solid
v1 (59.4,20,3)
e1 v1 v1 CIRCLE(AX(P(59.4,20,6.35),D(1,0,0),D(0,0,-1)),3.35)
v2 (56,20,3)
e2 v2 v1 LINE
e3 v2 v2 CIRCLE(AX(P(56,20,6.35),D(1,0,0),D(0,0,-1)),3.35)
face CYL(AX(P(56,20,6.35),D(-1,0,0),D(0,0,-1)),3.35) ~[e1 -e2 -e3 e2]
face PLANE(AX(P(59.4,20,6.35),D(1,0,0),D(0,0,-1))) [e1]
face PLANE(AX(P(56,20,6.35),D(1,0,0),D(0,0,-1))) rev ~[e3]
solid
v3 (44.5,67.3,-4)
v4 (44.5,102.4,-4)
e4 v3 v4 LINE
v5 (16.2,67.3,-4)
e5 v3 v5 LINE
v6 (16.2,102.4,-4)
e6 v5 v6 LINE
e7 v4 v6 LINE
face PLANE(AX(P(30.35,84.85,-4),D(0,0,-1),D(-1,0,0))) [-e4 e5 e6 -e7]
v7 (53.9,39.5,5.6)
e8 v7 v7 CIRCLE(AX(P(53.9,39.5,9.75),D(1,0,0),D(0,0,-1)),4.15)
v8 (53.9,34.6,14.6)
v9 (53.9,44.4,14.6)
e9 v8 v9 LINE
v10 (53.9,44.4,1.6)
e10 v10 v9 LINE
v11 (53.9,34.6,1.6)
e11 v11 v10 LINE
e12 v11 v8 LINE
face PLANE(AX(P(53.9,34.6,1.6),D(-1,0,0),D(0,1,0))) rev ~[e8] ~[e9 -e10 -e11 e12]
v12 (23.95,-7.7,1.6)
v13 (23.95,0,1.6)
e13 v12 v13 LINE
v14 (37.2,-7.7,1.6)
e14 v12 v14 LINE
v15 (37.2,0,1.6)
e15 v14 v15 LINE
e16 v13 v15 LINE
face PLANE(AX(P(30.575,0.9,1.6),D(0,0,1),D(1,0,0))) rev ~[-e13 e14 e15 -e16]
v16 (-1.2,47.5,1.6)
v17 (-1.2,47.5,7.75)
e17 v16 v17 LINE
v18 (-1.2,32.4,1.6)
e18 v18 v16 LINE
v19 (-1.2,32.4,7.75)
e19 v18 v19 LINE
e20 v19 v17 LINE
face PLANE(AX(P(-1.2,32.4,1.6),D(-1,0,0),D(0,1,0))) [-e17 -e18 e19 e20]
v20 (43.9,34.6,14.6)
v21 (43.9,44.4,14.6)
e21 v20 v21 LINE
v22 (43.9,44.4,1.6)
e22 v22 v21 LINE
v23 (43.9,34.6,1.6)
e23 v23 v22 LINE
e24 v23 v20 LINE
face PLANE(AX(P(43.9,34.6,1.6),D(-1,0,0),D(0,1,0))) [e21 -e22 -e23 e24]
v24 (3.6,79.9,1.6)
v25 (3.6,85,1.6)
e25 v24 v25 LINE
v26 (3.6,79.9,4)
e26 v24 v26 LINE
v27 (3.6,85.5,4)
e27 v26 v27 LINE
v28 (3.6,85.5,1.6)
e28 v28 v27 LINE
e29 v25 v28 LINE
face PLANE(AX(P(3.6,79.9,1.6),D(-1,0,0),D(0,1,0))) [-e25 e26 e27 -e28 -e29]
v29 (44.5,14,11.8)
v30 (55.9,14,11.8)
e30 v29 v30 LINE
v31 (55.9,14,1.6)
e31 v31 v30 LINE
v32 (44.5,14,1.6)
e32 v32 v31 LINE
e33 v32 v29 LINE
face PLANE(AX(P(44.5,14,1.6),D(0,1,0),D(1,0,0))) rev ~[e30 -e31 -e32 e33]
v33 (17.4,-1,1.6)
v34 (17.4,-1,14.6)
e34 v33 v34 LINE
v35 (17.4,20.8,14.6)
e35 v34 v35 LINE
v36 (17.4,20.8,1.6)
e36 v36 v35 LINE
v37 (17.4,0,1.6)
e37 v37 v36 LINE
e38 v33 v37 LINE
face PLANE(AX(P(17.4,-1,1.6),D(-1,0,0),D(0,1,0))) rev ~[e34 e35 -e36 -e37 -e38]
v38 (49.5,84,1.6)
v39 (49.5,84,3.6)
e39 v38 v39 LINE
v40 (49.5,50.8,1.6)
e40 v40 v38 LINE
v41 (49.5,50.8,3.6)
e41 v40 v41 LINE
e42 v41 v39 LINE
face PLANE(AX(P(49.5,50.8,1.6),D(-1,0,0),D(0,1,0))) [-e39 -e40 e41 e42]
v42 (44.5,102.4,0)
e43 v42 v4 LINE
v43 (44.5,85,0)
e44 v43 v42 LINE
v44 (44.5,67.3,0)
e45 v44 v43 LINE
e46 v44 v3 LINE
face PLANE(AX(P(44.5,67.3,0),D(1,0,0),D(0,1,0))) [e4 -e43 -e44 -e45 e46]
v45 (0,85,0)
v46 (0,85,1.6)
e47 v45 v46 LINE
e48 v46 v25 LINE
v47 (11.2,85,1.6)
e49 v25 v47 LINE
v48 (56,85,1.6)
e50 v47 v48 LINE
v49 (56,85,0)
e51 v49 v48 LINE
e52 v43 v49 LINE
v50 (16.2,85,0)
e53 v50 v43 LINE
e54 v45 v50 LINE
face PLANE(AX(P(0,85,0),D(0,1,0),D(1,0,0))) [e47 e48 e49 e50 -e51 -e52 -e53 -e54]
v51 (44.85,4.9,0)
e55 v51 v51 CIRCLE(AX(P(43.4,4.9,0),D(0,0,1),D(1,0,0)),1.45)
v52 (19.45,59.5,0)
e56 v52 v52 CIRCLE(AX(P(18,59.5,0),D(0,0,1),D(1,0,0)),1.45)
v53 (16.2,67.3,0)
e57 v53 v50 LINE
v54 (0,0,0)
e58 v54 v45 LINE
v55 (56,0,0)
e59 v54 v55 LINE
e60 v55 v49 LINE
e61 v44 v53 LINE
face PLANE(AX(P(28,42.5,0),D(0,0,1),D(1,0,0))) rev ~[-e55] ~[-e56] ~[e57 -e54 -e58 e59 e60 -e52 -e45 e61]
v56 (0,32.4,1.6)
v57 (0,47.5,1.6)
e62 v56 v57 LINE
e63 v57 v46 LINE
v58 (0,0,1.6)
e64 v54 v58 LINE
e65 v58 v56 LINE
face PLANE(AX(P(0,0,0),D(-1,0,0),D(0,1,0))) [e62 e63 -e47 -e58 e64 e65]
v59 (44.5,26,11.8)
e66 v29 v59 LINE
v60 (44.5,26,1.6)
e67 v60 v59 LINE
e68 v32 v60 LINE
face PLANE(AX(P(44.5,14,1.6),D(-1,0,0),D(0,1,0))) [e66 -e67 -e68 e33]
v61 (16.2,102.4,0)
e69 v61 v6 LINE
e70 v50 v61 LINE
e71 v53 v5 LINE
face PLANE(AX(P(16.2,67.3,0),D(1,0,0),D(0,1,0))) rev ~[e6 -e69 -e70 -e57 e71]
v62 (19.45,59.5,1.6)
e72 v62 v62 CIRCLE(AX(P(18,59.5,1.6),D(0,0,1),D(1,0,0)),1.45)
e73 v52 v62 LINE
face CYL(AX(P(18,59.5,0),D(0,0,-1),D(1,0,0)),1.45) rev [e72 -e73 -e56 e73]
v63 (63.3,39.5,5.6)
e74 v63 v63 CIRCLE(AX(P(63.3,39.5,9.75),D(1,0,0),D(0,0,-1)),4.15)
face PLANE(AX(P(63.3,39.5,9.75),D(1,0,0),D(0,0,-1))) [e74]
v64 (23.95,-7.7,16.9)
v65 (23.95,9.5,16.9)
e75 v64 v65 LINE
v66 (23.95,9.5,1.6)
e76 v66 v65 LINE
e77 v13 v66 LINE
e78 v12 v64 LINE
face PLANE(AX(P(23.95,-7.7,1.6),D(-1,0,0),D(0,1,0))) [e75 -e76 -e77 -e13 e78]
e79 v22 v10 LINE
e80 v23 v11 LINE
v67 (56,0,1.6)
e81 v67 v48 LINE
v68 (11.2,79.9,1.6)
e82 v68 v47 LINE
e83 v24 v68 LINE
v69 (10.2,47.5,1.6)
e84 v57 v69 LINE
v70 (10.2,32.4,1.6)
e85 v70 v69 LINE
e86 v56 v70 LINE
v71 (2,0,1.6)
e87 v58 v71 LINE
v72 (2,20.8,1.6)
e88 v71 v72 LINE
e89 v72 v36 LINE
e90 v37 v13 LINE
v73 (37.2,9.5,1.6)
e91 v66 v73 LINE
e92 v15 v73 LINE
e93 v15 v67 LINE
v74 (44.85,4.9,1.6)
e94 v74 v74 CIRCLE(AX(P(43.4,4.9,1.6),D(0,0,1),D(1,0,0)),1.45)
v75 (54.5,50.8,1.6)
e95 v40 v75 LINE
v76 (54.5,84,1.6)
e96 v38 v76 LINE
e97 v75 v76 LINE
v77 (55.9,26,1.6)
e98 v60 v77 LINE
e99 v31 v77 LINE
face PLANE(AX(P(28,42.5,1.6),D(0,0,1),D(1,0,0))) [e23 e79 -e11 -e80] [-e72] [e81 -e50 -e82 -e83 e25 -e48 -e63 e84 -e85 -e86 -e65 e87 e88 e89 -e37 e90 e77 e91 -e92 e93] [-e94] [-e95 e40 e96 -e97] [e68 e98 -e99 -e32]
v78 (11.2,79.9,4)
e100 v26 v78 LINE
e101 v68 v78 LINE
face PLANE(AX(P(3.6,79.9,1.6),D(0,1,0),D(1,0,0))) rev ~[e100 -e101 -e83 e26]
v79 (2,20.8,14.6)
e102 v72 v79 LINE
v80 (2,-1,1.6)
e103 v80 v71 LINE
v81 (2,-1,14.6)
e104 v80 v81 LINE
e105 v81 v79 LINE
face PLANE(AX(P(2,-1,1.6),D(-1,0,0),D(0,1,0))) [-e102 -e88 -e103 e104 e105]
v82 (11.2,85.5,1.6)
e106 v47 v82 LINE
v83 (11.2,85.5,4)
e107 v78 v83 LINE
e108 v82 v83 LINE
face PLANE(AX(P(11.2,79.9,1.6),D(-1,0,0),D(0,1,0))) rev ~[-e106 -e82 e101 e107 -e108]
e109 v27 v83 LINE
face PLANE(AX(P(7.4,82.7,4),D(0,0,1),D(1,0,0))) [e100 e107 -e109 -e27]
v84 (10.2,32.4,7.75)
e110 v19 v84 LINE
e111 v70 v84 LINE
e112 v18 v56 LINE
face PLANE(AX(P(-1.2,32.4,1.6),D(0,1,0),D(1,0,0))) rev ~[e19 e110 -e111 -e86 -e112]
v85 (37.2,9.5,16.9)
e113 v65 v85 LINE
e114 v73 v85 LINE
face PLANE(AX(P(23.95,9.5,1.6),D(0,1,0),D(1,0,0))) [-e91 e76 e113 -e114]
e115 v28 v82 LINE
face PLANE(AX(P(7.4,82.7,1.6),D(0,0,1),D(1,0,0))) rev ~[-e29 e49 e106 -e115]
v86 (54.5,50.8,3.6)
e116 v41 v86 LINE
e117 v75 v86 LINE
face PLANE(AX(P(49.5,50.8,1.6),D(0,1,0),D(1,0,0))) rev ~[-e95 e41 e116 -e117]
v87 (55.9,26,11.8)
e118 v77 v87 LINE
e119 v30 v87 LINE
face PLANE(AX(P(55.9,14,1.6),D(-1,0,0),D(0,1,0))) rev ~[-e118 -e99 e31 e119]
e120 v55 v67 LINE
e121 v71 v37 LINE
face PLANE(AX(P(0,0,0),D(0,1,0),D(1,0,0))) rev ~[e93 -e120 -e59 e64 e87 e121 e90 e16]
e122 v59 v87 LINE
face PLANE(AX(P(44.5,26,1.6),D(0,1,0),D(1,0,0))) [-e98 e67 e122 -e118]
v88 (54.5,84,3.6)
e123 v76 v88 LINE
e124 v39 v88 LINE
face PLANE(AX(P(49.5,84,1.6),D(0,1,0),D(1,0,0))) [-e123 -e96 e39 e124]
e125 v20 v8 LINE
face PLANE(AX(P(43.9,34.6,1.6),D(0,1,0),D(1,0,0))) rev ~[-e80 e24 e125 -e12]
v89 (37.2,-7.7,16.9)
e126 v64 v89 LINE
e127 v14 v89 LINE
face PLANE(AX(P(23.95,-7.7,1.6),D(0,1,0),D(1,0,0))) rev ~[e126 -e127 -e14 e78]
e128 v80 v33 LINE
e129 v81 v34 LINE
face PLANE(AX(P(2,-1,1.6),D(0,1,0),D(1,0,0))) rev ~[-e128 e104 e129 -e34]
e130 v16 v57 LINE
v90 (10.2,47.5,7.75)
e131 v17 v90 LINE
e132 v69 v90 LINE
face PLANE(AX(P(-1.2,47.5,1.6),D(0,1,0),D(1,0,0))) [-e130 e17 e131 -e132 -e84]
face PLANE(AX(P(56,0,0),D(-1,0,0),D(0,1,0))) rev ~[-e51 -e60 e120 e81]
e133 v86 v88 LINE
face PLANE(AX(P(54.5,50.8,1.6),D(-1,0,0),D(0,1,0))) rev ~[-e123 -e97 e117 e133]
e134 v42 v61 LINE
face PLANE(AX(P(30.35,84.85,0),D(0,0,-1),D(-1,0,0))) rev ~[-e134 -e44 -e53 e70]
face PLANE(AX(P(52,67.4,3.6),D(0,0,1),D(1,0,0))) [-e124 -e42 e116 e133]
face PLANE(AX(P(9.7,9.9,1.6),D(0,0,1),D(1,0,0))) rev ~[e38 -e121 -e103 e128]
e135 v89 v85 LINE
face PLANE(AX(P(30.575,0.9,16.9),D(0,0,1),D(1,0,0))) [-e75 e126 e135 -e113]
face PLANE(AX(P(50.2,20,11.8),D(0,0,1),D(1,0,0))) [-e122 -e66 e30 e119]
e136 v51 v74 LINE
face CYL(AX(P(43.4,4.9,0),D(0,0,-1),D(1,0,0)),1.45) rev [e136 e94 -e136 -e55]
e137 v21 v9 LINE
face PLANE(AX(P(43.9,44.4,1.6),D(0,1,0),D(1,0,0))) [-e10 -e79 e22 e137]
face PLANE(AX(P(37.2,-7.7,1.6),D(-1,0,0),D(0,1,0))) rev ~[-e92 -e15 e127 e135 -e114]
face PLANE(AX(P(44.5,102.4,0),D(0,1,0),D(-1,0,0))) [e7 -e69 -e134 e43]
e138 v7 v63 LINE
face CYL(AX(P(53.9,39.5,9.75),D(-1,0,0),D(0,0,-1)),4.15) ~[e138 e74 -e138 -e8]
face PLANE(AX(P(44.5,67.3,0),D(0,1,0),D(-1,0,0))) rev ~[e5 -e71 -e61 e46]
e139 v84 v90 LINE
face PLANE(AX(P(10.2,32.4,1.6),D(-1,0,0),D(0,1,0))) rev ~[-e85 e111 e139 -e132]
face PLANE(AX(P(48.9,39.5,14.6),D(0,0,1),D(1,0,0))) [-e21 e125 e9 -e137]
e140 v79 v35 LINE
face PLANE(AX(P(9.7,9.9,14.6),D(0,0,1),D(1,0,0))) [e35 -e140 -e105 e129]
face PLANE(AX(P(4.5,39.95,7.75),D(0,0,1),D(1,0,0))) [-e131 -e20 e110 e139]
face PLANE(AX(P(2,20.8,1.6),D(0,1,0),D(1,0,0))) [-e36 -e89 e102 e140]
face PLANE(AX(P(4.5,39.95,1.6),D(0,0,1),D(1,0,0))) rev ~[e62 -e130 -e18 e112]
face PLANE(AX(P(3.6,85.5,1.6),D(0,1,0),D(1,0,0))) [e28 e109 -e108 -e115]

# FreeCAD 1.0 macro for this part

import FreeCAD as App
import Part
import Sketcher
Q = App.Units.Quantity


def add_polygon(sketch, points):
    """Adds a closed chain of lines whose ends are joined by coincident constraints."""
    first, n = sketch.GeometryCount, len(points)
    for a, b in zip(points, points[1:] + points[:1]):
        sketch.addGeometry(Part.LineSegment(App.Vector(*a, 0), App.Vector(*b, 0)), False)
    for i in range(n):
        sketch.addConstraint(Sketcher.Constraint("Coincident", first + i, 2, first + (i + 1) % n, 1))

doc = App.newDocument("Part")
body = doc.addObject("PartDesign::Body", "Body")

sketch1 = body.newObject("Sketcher::SketchObject", "Sketch")
sketch1.AttachmentSupport = (doc.getObject("XY_Plane"), [""])
sketch1.MapMode = "FlatFace"
add_polygon(sketch1, [(0, 85), (0, 0), (56, 0), (56, 85)])
sketch1.addGeometry(Part.Circle(App.Vector(43.4, 4.9, 0), App.Vector(0, 0, 1), 1.4), False)
sketch1.addGeometry(Part.Circle(App.Vector(18, 59.5, 0), App.Vector(0, 0, 1), 1.4), False)
sketch1.addConstraint(Sketcher.Constraint("Vertical", 0))
sketch1.addConstraint(Sketcher.Constraint("Horizontal", 1))
sketch1.addConstraint(Sketcher.Constraint("Vertical", 2))
sketch1.addConstraint(Sketcher.Constraint("Horizontal", 3))
sketch1.addConstraint(Sketcher.Constraint("Coincident", 0, 2, -1, 1))
sketch1.addConstraint(Sketcher.Constraint("Equal", 4, 5))
sketch1.addConstraint(Sketcher.Constraint("Diameter", 4, Q("2.9 mm")))
sketch1.addConstraint(Sketcher.Constraint("DistanceX", 1, 1, 1, 2, Q("56 mm")))
sketch1.addConstraint(Sketcher.Constraint("DistanceY", 0, 2, 0, 1, Q("85 mm")))
sketch1.addConstraint(Sketcher.Constraint("DistanceX", -1, 1, 5, 3, Q("18 mm")))
sketch1.addConstraint(Sketcher.Constraint("DistanceX", -1, 1, 4, 3, Q("43.4 mm")))
sketch1.addConstraint(Sketcher.Constraint("DistanceY", -1, 1, 4, 3, Q("4.9 mm")))
sketch1.addConstraint(Sketcher.Constraint("DistanceY", -1, 1, 5, 3, Q("59.5 mm")))
pad1 = body.newObject("PartDesign::Pad", "Pad")
pad1.Profile = sketch1
pad1.Length = 1.6

sketch2 = body.newObject("Sketcher::SketchObject", "Sketch001")
sketch2.AttachmentSupport = (doc.getObject("XY_Plane"), [""])
sketch2.MapMode = "FlatFace"
sketch2.AttachmentOffset = App.Placement(App.Vector(0, 0, 1.6), App.Rotation())
add_polygon(sketch2, [(4, 86), (4, 80), (11, 80), (11, 86)])
sketch2.addConstraint(Sketcher.Constraint("Vertical", 0))
sketch2.addConstraint(Sketcher.Constraint("Horizontal", 1))
sketch2.addConstraint(Sketcher.Constraint("Vertical", 2))
sketch2.addConstraint(Sketcher.Constraint("Horizontal", 3))
sketch2.addConstraint(Sketcher.Constraint("DistanceX", 1, 1, 1, 2, Q("7.6 mm")))
sketch2.addConstraint(Sketcher.Constraint("DistanceY", 0, 2, 0, 1, Q("5.6 mm")))
sketch2.addConstraint(Sketcher.Constraint("DistanceX", -1, 1, 0, 2, Q("3.6 mm")))
sketch2.addConstraint(Sketcher.Constraint("DistanceY", -1, 1, 0, 2, Q("79.9 mm")))
pad2 = body.newObject("PartDesign::Pad", "Pad001")
pad2.Profile = sketch2
pad2.Length = 2.4

sketch3 = body.newObject("Sketcher::SketchObject", "Sketch002")
sketch3.AttachmentSupport = (doc.getObject("XY_Plane"), [""])
sketch3.MapMode = "FlatFace"
sketch3.AttachmentOffset = App.Placement(App.Vector(0, 0, 1.6), App.Rotation())
add_polygon(sketch3, [(-1, 48), (-1, 32), (10, 32), (10, 48)])
sketch3.addConstraint(Sketcher.Constraint("Vertical", 0))
sketch3.addConstraint(Sketcher.Constraint("Horizontal", 1))
sketch3.addConstraint(Sketcher.Constraint("Vertical", 2))
sketch3.addConstraint(Sketcher.Constraint("Horizontal", 3))
sketch3.addConstraint(Sketcher.Constraint("DistanceX", 1, 1, 1, 2, Q("11.4 mm")))
sketch3.addConstraint(Sketcher.Constraint("DistanceY", 0, 2, 0, 1, Q("15.1 mm")))
sketch3.addConstraint(Sketcher.Constraint("DistanceX", 0, 2, -1, 1, Q("1.2 mm")))
sketch3.addConstraint(Sketcher.Constraint("DistanceY", -1, 1, 0, 2, Q("32.4 mm")))
pad3 = body.newObject("PartDesign::Pad", "Pad002")
pad3.Profile = sketch3
pad3.Length = 6.15

sketch4 = body.newObject("Sketcher::SketchObject", "Sketch003")
sketch4.AttachmentSupport = (doc.getObject("XY_Plane"), [""])
sketch4.MapMode = "FlatFace"
sketch4.AttachmentOffset = App.Placement(App.Vector(0, 0, 1.6), App.Rotation())
add_polygon(sketch4, [(2, 21), (2, -1), (17, -1), (17, 21)])
sketch4.addConstraint(Sketcher.Constraint("Vertical", 0))
sketch4.addConstraint(Sketcher.Constraint("Horizontal", 1))
sketch4.addConstraint(Sketcher.Constraint("Vertical", 2))
sketch4.addConstraint(Sketcher.Constraint("Horizontal", 3))
sketch4.addConstraint(Sketcher.Constraint("DistanceX", 1, 1, 1, 2, Q("15.4 mm")))
sketch4.addConstraint(Sketcher.Constraint("DistanceY", 0, 2, 0, 1, Q("21.8 mm")))
sketch4.addConstraint(Sketcher.Constraint("DistanceX", -1, 1, 0, 2, Q("2 mm")))
sketch4.addConstraint(Sketcher.Constraint("DistanceY", 0, 2, -1, 1, Q("1 mm")))
pad4 = body.newObject("PartDesign::Pad", "Pad003")
pad4.Profile = sketch4
pad4.Length = 13

sketch5 = body.newObject("Sketcher::SketchObject", "Sketch004")
sketch5.AttachmentSupport = (doc.getObject("XY_Plane"), [""])
sketch5.MapMode = "FlatFace"
sketch5.AttachmentOffset = App.Placement(App.Vector(0, 0, 1.6), App.Rotation())
add_polygon(sketch5, [(24, 10), (24, -8), (37, -8), (37, 10)])
sketch5.addConstraint(Sketcher.Constraint("Vertical", 0))
sketch5.addConstraint(Sketcher.Constraint("Horizontal", 1))
sketch5.addConstraint(Sketcher.Constraint("Vertical", 2))
sketch5.addConstraint(Sketcher.Constraint("Horizontal", 3))
sketch5.addConstraint(Sketcher.Constraint("DistanceY", 0, 2, 0, 1, Q("17.2 mm")))
sketch5.addConstraint(Sketcher.Constraint("DistanceX", 1, 1, 1, 2, Q("13.25 mm")))
sketch5.addConstraint(Sketcher.Constraint("DistanceY", 0, 2, -1, 1, Q("7.7 mm")))
sketch5.addConstraint(Sketcher.Constraint("DistanceX", -1, 1, 1, 2, Q("37.2 mm")))
pad5 = body.newObject("PartDesign::Pad", "Pad004")
pad5.Profile = sketch5
pad5.Length = 15.3

sketch6 = body.newObject("Sketcher::SketchObject", "Sketch005")
sketch6.AttachmentSupport = (doc.getObject("XY_Plane"), [""])
sketch6.MapMode = "FlatFace"
sketch6.AttachmentOffset = App.Placement(App.Vector(0, 0, 1.6), App.Rotation())
add_polygon(sketch6, [(44, 26), (44, 14), (56, 14), (56, 26)])
sketch6.addConstraint(Sketcher.Constraint("Vertical", 0))
sketch6.addConstraint(Sketcher.Constraint("Horizontal", 1))
sketch6.addConstraint(Sketcher.Constraint("Vertical", 2))
sketch6.addConstraint(Sketcher.Constraint("Horizontal", 3))
sketch6.addConstraint(Sketcher.Constraint("DistanceY", 0, 2, 0, 1, Q("12 mm")))
sketch6.addConstraint(Sketcher.Constraint("DistanceX", 1, 1, 1, 2, Q("11.4 mm")))
sketch6.addConstraint(Sketcher.Constraint("DistanceY", -1, 1, 0, 2, Q("14 mm")))
sketch6.addConstraint(Sketcher.Constraint("DistanceX", -1, 1, 0, 2, Q("44.5 mm")))
pad6 = body.newObject("PartDesign::Pad", "Pad005")
pad6.Profile = sketch6
pad6.Length = 10.2

sketch7 = body.newObject("Sketcher::SketchObject", "Sketch006")
sketch7.AttachmentSupport = (doc.getObject("XY_Plane"), [""])
sketch7.MapMode = "FlatFace"
sketch7.AttachmentOffset = App.Placement(App.Vector(0, 0, 1.6), App.Rotation())
add_polygon(sketch7, [(44, 44), (44, 35), (54, 35), (54, 44)])
sketch7.addConstraint(Sketcher.Constraint("Vertical", 0))
sketch7.addConstraint(Sketcher.Constraint("Horizontal", 1))
sketch7.addConstraint(Sketcher.Constraint("Vertical", 2))
sketch7.addConstraint(Sketcher.Constraint("Horizontal", 3))
sketch7.addConstraint(Sketcher.Constraint("DistanceX", 1, 1, 1, 2, Q("10 mm")))
sketch7.addConstraint(Sketcher.Constraint("DistanceY", 0, 2, 0, 1, Q("9.8 mm")))
sketch7.addConstraint(Sketcher.Constraint("DistanceX", -1, 1, 0, 2, Q("43.9 mm")))
sketch7.addConstraint(Sketcher.Constraint("DistanceY", -1, 1, 0, 2, Q("34.6 mm")))
pad7 = body.newObject("PartDesign::Pad", "Pad006")
pad7.Profile = sketch7
pad7.Length = 13

sketch8 = body.newObject("Sketcher::SketchObject", "Sketch007")
sketch8.AttachmentSupport = (doc.getObject("XY_Plane"), [""])
sketch8.MapMode = "FlatFace"
sketch8.AttachmentOffset = App.Placement(App.Vector(0, 0, 1.6), App.Rotation())
add_polygon(sketch8, [(50, 84), (50, 51), (54, 51), (54, 84)])
sketch8.addConstraint(Sketcher.Constraint("Vertical", 0))
sketch8.addConstraint(Sketcher.Constraint("Horizontal", 1))
sketch8.addConstraint(Sketcher.Constraint("Vertical", 2))
sketch8.addConstraint(Sketcher.Constraint("Horizontal", 3))
sketch8.addConstraint(Sketcher.Constraint("DistanceX", 1, 1, 1, 2, Q("5 mm")))
sketch8.addConstraint(Sketcher.Constraint("DistanceY", 0, 2, 0, 1, Q("33.2 mm")))
sketch8.addConstraint(Sketcher.Constraint("DistanceY", -1, 1, 2, 2, Q("84 mm")))
sketch8.addConstraint(Sketcher.Constraint("DistanceX", -1, 1, 0, 2, Q("49.5 mm")))
pad8 = body.newObject("PartDesign::Pad", "Pad007")
pad8.Profile = sketch8
pad8.Length = 2

sketch9 = body.newObject("Sketcher::SketchObject", "Sketch008")
sketch9.AttachmentSupport = (doc.getObject("XY_Plane"), [""])
sketch9.MapMode = "FlatFace"
add_polygon(sketch9, [(44, 102), (44, 67), (16, 67), (16, 102)])
sketch9.addConstraint(Sketcher.Constraint("Vertical", 0))
sketch9.addConstraint(Sketcher.Constraint("Horizontal", 1))
sketch9.addConstraint(Sketcher.Constraint("Vertical", 2))
sketch9.addConstraint(Sketcher.Constraint("Horizontal", 3))
sketch9.addConstraint(Sketcher.Constraint("DistanceX", 1, 2, 1, 1, Q("28.3 mm")))
sketch9.addConstraint(Sketcher.Constraint("DistanceY", 0, 2, 0, 1, Q("35.1 mm")))
sketch9.addConstraint(Sketcher.Constraint("DistanceX", -1, 1, 0, 2, Q("44.5 mm")))
sketch9.addConstraint(Sketcher.Constraint("DistanceY", -1, 1, 0, 2, Q("67.3 mm")))
pad9 = body.newObject("PartDesign::Pad", "Pad008")
pad9.Profile = sketch9
pad9.Length = 4
pad9.Reversed = True

sketch10 = body.newObject("Sketcher::SketchObject", "Sketch009")
sketch10.AttachmentSupport = (doc.getObject("YZ_Plane"), [""])
sketch10.MapMode = "FlatFace"
sketch10.AttachmentOffset = App.Placement(App.Vector(0, 0, 53.9), App.Rotation())
sketch10.addGeometry(Part.Circle(App.Vector(39.5, 9.8, 0), App.Vector(0, 0, 1), 4.2), False)
sketch10.addConstraint(Sketcher.Constraint("Diameter", 0, Q("8.3 mm")))
sketch10.addConstraint(Sketcher.Constraint("DistanceX", -1, 1, 0, 3, Q("39.5 mm")))
sketch10.addConstraint(Sketcher.Constraint("DistanceY", -1, 1, 0, 3, Q("9.75 mm")))
pad10 = body.newObject("PartDesign::Pad", "Pad009")
pad10.Profile = sketch10
pad10.Length = 9.4
body2 = doc.addObject("PartDesign::Body", "Body001")

sketch11 = body2.newObject("Sketcher::SketchObject", "Sketch010")
sketch11.AttachmentSupport = (doc.getObject("YZ_Plane001"), [""])
sketch11.MapMode = "FlatFace"
sketch11.AttachmentOffset = App.Placement(App.Vector(0, 0, 56), App.Rotation())
sketch11.addGeometry(Part.Circle(App.Vector(20, 6.3, 0), App.Vector(0, 0, 1), 3.4), False)
sketch11.addConstraint(Sketcher.Constraint("Diameter", 0, Q("6.7 mm")))
sketch11.addConstraint(Sketcher.Constraint("DistanceX", -1, 1, 0, 3, Q("20 mm")))
sketch11.addConstraint(Sketcher.Constraint("DistanceY", -1, 1, 0, 3, Q("6.35 mm")))
pad11 = body2.newObject("PartDesign::Pad", "Pad010")
pad11.Profile = sketch11
pad11.Length = 3.4

doc.recompute()
